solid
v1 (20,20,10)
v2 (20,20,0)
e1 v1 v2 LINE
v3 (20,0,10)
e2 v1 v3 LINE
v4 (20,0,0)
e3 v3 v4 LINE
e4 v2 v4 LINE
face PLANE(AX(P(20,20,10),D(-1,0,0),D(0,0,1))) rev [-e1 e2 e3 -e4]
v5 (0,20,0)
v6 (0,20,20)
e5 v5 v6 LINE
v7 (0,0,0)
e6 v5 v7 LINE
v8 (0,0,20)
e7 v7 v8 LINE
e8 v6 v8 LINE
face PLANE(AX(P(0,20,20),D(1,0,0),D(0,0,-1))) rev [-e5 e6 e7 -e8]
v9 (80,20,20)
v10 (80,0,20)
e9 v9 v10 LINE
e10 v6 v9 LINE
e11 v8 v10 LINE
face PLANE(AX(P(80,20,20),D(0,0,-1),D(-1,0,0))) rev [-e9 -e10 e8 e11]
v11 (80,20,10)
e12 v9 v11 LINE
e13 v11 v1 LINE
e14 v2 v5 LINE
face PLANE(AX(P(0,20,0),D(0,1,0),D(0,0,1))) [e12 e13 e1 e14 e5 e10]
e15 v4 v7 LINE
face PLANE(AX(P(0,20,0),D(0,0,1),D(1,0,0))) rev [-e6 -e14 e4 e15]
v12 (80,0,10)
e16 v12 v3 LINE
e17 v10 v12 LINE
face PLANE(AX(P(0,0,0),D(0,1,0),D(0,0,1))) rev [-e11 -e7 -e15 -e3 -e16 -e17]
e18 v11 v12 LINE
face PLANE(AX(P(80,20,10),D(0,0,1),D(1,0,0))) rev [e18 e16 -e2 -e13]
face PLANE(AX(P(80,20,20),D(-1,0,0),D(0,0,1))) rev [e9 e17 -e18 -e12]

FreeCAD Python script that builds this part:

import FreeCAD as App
import Part
import Sketcher
Q = App.Units.Quantity

doc = App.newDocument("Part")
body = doc.addObject("PartDesign::Body", "Body")

# Sketch on XZ plane
sketch1 = doc.addObject("Sketcher::SketchObject", "Sketch")
body.addObject(sketch1)
sketch1.AttachmentSupport = (doc.XZ_Plane, [""])
sketch1.MapMode = "FlatFace"
sketch1.addGeometry([
    Part.LineSegment(App.Vector(0, 0, 0), App.Vector(0, 20, 0)),  # 0
    Part.LineSegment(App.Vector(0, 20, 0), App.Vector(80, 20, 0)),  # 1
    Part.LineSegment(App.Vector(80, 20, 0), App.Vector(80, 10, 0)),  # 2
    Part.LineSegment(App.Vector(80, 10, 0), App.Vector(20, 10, 0)),  # 3
    Part.LineSegment(App.Vector(20, 10, 0), App.Vector(20, 0, 0)),  # 4
    Part.LineSegment(App.Vector(20, 0, 0), App.Vector(0, 0, 0)),  # 5
], False)
sketch1.addConstraint([
    Sketcher.Constraint("Coincident", 0, 2, 1, 1),
    Sketcher.Constraint("Coincident", 1, 2, 2, 1),
    Sketcher.Constraint("Coincident", 2, 2, 3, 1),
    Sketcher.Constraint("Coincident", 3, 2, 4, 1),
    Sketcher.Constraint("Coincident", 4, 2, 5, 1),
    Sketcher.Constraint("Coincident", 5, 2, 0, 1),
    Sketcher.Constraint("Vertical", 0),
    Sketcher.Constraint("Horizontal", 1),
    Sketcher.Constraint("Vertical", 2),
    Sketcher.Constraint("Horizontal", 3),
    Sketcher.Constraint("Vertical", 4),
    Sketcher.Constraint("Horizontal", 5),
    Sketcher.Constraint("Coincident", 5, 2, -1, 1),
    Sketcher.Constraint("Equal", 5, 0),
    Sketcher.Constraint("Equal", 2, 4),
    Sketcher.Constraint("DistanceX", 1, 1, 1, 2, Q("80 mm")),
    Sketcher.Constraint("DistanceX", 3, 2, 3, 1, Q("60 mm")),
])
pad1 = doc.addObject("PartDesign::Pad", "Pad")
body.addObject(pad1)
pad1.Profile = sketch1
pad1.Length = 20
pad1.Reversed = True

doc.recompute()
